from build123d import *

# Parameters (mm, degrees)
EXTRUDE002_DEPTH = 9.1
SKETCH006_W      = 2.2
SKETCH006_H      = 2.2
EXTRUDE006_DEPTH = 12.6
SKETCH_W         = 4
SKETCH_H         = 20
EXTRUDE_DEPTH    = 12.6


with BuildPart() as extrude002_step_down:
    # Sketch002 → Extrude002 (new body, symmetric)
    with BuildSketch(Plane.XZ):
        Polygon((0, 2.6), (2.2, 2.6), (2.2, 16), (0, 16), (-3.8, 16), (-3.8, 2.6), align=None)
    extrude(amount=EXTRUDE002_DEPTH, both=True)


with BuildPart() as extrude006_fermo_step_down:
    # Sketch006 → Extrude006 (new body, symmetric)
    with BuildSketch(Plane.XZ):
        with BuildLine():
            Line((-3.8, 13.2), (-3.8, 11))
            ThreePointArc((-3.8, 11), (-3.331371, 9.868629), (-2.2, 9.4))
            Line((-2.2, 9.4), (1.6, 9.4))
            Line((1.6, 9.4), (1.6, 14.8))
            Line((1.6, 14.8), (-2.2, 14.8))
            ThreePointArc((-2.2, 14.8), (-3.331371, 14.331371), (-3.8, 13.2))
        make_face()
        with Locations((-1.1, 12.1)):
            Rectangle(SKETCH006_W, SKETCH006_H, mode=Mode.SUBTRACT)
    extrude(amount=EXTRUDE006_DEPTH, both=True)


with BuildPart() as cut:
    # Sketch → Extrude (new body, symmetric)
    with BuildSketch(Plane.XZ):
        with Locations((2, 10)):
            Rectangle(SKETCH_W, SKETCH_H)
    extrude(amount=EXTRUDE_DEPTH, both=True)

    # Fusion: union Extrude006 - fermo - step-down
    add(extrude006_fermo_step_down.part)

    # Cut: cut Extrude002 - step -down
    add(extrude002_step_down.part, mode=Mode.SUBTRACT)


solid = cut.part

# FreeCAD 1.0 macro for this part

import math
import FreeCAD as App
import Part
import Sketcher

V = App.Vector
Q = App.Units.Quantity


def add_polygon(sketch, points):
    """Adds a closed chain of lines whose ends are joined by coincident constraints."""
    first, n = sketch.GeometryCount, len(points)
    for a, b in zip(points, points[1:] + points[:1]):
        sketch.addGeometry(Part.LineSegment(App.Vector(*a, 0), App.Vector(*b, 0)), False)
    for i in range(n):
        sketch.addConstraint(Sketcher.Constraint("Coincident", first + i, 2, first + (i + 1) % n, 1))

doc = App.newDocument("Part")
body = doc.addObject("PartDesign::Body", "Body")

sketch1 = doc.addObject("Sketcher::SketchObject", "Sketch")
body.addObject(sketch1)
sketch1.AttachmentSupport = (doc.XZ_Plane, [""])
sketch1.MapMode = "FlatFace"
add_polygon(sketch1, [(2, 3), (2, 16), (-4, 16), (-4, 3)])
sketch1.addConstraint(Sketcher.Constraint("Vertical", 0))
sketch1.addConstraint(Sketcher.Constraint("Horizontal", 1))
sketch1.addConstraint(Sketcher.Constraint("Vertical", 2))
sketch1.addConstraint(Sketcher.Constraint("Horizontal", 3))
sketch1.addConstraint(Sketcher.Constraint("DistanceX", 1, 2, 1, 1, Q("6 mm")))
sketch1.addConstraint(Sketcher.Constraint("DistanceY", 0, 1, 0, 2, Q("13.4 mm")))
sketch1.addConstraint(Sketcher.Constraint("DistanceY", -1, 1, 0, 2, Q("16 mm")))
sketch1.addConstraint(Sketcher.Constraint("DistanceX", -1, 1, 0, 2, Q("2.2 mm")))
pad1 = doc.addObject("PartDesign::Pad", "Pad")
body.addObject(pad1)
pad1.Profile = sketch1
pad1.Length = 18.2
pad1.Midplane = True
body2 = doc.addObject("PartDesign::Body", "Body001")

sketch2 = doc.addObject("Sketcher::SketchObject", "Sketch001")
body2.addObject(sketch2)
sketch2.AttachmentSupport = (doc.getObject("XZ_Plane001"), [""])
sketch2.MapMode = "FlatFace"
sketch2.addGeometry(Part.LineSegment(V(-3.8, 13.2, 0), V(-3.8, 11, 0)), False)
sketch2.addGeometry(Part.ArcOfCircle(Part.Circle(V(-2.2, 11, 0), V(0, 0, 1), 1.6), math.radians(180), math.radians(270)), False)
sketch2.addGeometry(Part.LineSegment(V(-2.2, 9.4, 0), V(1.6, 9.4, 0)), False)
sketch2.addGeometry(Part.LineSegment(V(1.6, 9.4, 0), V(1.6, 14.8, 0)), False)
sketch2.addGeometry(Part.LineSegment(V(1.6, 14.8, 0), V(-2.2, 14.8, 0)), False)
sketch2.addGeometry(Part.ArcOfCircle(Part.Circle(V(-2.2, 13.2, 0), V(0, 0, 1), 1.6), math.radians(90), math.radians(180)), False)
add_polygon(sketch2, [(0, 11), (-2.2, 11), (-2.2, 13.2), (0, 13.2)])
sketch2.addConstraint(Sketcher.Constraint("Tangent", 0, 2, 1, 1))
sketch2.addConstraint(Sketcher.Constraint("Tangent", 1, 2, 2, 1))
sketch2.addConstraint(Sketcher.Constraint("Coincident", 2, 2, 3, 1))
sketch2.addConstraint(Sketcher.Constraint("Coincident", 3, 2, 4, 1))
sketch2.addConstraint(Sketcher.Constraint("Tangent", 4, 2, 5, 1))
sketch2.addConstraint(Sketcher.Constraint("Tangent", 5, 2, 0, 1))
sketch2.addConstraint(Sketcher.Constraint("Vertical", 0))
sketch2.addConstraint(Sketcher.Constraint("Horizontal", 2))
sketch2.addConstraint(Sketcher.Constraint("Vertical", 3))
sketch2.addConstraint(Sketcher.Constraint("Horizontal", 4))
sketch2.addConstraint(Sketcher.Constraint("Horizontal", 6))
sketch2.addConstraint(Sketcher.Constraint("Vertical", 7))
sketch2.addConstraint(Sketcher.Constraint("Horizontal", 8))
sketch2.addConstraint(Sketcher.Constraint("Vertical", 9))
sketch2.addConstraint(Sketcher.Constraint("Coincident", 6, 2, 1, 3))
sketch2.addConstraint(Sketcher.Constraint("Coincident", 7, 2, 5, 3))
sketch2.addConstraint(Sketcher.Constraint("PointOnObject", 8, 2, -2))
sketch2.addConstraint(Sketcher.Constraint("Equal", 8, 0))
sketch2.addConstraint(Sketcher.Constraint("Radius", 1, Q("1.599999 mm")))
sketch2.addConstraint(Sketcher.Constraint("DistanceX", 2, 1, 2, 2, Q("3.8 mm")))
sketch2.addConstraint(Sketcher.Constraint("DistanceX", 6, 2, 6, 1, Q("2.2 mm")))
sketch2.addConstraint(Sketcher.Constraint("DistanceY", -1, 1, 1, 3, Q("10.999999 mm")))
pad2 = doc.addObject("PartDesign::Pad", "Pad001")
body2.addObject(pad2)
pad2.Profile = sketch2
pad2.Length = 25.2
pad2.Midplane = True
body3 = doc.addObject("PartDesign::Body", "Body002")

sketch3 = doc.addObject("Sketcher::SketchObject", "Sketch002")
body3.addObject(sketch3)
sketch3.AttachmentSupport = (doc.getObject("XZ_Plane002"), [""])
sketch3.MapMode = "FlatFace"
add_polygon(sketch3, [(0, 20), (0, 0), (4, 0), (4, 20)])
sketch3.addConstraint(Sketcher.Constraint("Vertical", 0))
sketch3.addConstraint(Sketcher.Constraint("Horizontal", 1))
sketch3.addConstraint(Sketcher.Constraint("Vertical", 2))
sketch3.addConstraint(Sketcher.Constraint("Horizontal", 3))
sketch3.addConstraint(Sketcher.Constraint("Coincident", 0, 2, -1, 1))
sketch3.addConstraint(Sketcher.Constraint("DistanceX", 1, 1, 1, 2, Q("4 mm")))
sketch3.addConstraint(Sketcher.Constraint("DistanceY", 0, 2, 0, 1, Q("20 mm")))
pad3 = doc.addObject("PartDesign::Pad", "Pad002")
body3.addObject(pad3)
pad3.Profile = sketch3
pad3.Length = 25.2
pad3.Midplane = True
doc.recompute()

boolean = doc.addObject("PartDesign::Boolean", "Boolean")
body3.addObject(boolean)
boolean.Type = "Fuse"
boolean.addObjects([body2])
doc.recompute()

boolean2 = doc.addObject("PartDesign::Boolean", "Boolean001")
body3.addObject(boolean2)
boolean2.Type = "Cut"
boolean2.addObjects([body])

doc.recompute()
